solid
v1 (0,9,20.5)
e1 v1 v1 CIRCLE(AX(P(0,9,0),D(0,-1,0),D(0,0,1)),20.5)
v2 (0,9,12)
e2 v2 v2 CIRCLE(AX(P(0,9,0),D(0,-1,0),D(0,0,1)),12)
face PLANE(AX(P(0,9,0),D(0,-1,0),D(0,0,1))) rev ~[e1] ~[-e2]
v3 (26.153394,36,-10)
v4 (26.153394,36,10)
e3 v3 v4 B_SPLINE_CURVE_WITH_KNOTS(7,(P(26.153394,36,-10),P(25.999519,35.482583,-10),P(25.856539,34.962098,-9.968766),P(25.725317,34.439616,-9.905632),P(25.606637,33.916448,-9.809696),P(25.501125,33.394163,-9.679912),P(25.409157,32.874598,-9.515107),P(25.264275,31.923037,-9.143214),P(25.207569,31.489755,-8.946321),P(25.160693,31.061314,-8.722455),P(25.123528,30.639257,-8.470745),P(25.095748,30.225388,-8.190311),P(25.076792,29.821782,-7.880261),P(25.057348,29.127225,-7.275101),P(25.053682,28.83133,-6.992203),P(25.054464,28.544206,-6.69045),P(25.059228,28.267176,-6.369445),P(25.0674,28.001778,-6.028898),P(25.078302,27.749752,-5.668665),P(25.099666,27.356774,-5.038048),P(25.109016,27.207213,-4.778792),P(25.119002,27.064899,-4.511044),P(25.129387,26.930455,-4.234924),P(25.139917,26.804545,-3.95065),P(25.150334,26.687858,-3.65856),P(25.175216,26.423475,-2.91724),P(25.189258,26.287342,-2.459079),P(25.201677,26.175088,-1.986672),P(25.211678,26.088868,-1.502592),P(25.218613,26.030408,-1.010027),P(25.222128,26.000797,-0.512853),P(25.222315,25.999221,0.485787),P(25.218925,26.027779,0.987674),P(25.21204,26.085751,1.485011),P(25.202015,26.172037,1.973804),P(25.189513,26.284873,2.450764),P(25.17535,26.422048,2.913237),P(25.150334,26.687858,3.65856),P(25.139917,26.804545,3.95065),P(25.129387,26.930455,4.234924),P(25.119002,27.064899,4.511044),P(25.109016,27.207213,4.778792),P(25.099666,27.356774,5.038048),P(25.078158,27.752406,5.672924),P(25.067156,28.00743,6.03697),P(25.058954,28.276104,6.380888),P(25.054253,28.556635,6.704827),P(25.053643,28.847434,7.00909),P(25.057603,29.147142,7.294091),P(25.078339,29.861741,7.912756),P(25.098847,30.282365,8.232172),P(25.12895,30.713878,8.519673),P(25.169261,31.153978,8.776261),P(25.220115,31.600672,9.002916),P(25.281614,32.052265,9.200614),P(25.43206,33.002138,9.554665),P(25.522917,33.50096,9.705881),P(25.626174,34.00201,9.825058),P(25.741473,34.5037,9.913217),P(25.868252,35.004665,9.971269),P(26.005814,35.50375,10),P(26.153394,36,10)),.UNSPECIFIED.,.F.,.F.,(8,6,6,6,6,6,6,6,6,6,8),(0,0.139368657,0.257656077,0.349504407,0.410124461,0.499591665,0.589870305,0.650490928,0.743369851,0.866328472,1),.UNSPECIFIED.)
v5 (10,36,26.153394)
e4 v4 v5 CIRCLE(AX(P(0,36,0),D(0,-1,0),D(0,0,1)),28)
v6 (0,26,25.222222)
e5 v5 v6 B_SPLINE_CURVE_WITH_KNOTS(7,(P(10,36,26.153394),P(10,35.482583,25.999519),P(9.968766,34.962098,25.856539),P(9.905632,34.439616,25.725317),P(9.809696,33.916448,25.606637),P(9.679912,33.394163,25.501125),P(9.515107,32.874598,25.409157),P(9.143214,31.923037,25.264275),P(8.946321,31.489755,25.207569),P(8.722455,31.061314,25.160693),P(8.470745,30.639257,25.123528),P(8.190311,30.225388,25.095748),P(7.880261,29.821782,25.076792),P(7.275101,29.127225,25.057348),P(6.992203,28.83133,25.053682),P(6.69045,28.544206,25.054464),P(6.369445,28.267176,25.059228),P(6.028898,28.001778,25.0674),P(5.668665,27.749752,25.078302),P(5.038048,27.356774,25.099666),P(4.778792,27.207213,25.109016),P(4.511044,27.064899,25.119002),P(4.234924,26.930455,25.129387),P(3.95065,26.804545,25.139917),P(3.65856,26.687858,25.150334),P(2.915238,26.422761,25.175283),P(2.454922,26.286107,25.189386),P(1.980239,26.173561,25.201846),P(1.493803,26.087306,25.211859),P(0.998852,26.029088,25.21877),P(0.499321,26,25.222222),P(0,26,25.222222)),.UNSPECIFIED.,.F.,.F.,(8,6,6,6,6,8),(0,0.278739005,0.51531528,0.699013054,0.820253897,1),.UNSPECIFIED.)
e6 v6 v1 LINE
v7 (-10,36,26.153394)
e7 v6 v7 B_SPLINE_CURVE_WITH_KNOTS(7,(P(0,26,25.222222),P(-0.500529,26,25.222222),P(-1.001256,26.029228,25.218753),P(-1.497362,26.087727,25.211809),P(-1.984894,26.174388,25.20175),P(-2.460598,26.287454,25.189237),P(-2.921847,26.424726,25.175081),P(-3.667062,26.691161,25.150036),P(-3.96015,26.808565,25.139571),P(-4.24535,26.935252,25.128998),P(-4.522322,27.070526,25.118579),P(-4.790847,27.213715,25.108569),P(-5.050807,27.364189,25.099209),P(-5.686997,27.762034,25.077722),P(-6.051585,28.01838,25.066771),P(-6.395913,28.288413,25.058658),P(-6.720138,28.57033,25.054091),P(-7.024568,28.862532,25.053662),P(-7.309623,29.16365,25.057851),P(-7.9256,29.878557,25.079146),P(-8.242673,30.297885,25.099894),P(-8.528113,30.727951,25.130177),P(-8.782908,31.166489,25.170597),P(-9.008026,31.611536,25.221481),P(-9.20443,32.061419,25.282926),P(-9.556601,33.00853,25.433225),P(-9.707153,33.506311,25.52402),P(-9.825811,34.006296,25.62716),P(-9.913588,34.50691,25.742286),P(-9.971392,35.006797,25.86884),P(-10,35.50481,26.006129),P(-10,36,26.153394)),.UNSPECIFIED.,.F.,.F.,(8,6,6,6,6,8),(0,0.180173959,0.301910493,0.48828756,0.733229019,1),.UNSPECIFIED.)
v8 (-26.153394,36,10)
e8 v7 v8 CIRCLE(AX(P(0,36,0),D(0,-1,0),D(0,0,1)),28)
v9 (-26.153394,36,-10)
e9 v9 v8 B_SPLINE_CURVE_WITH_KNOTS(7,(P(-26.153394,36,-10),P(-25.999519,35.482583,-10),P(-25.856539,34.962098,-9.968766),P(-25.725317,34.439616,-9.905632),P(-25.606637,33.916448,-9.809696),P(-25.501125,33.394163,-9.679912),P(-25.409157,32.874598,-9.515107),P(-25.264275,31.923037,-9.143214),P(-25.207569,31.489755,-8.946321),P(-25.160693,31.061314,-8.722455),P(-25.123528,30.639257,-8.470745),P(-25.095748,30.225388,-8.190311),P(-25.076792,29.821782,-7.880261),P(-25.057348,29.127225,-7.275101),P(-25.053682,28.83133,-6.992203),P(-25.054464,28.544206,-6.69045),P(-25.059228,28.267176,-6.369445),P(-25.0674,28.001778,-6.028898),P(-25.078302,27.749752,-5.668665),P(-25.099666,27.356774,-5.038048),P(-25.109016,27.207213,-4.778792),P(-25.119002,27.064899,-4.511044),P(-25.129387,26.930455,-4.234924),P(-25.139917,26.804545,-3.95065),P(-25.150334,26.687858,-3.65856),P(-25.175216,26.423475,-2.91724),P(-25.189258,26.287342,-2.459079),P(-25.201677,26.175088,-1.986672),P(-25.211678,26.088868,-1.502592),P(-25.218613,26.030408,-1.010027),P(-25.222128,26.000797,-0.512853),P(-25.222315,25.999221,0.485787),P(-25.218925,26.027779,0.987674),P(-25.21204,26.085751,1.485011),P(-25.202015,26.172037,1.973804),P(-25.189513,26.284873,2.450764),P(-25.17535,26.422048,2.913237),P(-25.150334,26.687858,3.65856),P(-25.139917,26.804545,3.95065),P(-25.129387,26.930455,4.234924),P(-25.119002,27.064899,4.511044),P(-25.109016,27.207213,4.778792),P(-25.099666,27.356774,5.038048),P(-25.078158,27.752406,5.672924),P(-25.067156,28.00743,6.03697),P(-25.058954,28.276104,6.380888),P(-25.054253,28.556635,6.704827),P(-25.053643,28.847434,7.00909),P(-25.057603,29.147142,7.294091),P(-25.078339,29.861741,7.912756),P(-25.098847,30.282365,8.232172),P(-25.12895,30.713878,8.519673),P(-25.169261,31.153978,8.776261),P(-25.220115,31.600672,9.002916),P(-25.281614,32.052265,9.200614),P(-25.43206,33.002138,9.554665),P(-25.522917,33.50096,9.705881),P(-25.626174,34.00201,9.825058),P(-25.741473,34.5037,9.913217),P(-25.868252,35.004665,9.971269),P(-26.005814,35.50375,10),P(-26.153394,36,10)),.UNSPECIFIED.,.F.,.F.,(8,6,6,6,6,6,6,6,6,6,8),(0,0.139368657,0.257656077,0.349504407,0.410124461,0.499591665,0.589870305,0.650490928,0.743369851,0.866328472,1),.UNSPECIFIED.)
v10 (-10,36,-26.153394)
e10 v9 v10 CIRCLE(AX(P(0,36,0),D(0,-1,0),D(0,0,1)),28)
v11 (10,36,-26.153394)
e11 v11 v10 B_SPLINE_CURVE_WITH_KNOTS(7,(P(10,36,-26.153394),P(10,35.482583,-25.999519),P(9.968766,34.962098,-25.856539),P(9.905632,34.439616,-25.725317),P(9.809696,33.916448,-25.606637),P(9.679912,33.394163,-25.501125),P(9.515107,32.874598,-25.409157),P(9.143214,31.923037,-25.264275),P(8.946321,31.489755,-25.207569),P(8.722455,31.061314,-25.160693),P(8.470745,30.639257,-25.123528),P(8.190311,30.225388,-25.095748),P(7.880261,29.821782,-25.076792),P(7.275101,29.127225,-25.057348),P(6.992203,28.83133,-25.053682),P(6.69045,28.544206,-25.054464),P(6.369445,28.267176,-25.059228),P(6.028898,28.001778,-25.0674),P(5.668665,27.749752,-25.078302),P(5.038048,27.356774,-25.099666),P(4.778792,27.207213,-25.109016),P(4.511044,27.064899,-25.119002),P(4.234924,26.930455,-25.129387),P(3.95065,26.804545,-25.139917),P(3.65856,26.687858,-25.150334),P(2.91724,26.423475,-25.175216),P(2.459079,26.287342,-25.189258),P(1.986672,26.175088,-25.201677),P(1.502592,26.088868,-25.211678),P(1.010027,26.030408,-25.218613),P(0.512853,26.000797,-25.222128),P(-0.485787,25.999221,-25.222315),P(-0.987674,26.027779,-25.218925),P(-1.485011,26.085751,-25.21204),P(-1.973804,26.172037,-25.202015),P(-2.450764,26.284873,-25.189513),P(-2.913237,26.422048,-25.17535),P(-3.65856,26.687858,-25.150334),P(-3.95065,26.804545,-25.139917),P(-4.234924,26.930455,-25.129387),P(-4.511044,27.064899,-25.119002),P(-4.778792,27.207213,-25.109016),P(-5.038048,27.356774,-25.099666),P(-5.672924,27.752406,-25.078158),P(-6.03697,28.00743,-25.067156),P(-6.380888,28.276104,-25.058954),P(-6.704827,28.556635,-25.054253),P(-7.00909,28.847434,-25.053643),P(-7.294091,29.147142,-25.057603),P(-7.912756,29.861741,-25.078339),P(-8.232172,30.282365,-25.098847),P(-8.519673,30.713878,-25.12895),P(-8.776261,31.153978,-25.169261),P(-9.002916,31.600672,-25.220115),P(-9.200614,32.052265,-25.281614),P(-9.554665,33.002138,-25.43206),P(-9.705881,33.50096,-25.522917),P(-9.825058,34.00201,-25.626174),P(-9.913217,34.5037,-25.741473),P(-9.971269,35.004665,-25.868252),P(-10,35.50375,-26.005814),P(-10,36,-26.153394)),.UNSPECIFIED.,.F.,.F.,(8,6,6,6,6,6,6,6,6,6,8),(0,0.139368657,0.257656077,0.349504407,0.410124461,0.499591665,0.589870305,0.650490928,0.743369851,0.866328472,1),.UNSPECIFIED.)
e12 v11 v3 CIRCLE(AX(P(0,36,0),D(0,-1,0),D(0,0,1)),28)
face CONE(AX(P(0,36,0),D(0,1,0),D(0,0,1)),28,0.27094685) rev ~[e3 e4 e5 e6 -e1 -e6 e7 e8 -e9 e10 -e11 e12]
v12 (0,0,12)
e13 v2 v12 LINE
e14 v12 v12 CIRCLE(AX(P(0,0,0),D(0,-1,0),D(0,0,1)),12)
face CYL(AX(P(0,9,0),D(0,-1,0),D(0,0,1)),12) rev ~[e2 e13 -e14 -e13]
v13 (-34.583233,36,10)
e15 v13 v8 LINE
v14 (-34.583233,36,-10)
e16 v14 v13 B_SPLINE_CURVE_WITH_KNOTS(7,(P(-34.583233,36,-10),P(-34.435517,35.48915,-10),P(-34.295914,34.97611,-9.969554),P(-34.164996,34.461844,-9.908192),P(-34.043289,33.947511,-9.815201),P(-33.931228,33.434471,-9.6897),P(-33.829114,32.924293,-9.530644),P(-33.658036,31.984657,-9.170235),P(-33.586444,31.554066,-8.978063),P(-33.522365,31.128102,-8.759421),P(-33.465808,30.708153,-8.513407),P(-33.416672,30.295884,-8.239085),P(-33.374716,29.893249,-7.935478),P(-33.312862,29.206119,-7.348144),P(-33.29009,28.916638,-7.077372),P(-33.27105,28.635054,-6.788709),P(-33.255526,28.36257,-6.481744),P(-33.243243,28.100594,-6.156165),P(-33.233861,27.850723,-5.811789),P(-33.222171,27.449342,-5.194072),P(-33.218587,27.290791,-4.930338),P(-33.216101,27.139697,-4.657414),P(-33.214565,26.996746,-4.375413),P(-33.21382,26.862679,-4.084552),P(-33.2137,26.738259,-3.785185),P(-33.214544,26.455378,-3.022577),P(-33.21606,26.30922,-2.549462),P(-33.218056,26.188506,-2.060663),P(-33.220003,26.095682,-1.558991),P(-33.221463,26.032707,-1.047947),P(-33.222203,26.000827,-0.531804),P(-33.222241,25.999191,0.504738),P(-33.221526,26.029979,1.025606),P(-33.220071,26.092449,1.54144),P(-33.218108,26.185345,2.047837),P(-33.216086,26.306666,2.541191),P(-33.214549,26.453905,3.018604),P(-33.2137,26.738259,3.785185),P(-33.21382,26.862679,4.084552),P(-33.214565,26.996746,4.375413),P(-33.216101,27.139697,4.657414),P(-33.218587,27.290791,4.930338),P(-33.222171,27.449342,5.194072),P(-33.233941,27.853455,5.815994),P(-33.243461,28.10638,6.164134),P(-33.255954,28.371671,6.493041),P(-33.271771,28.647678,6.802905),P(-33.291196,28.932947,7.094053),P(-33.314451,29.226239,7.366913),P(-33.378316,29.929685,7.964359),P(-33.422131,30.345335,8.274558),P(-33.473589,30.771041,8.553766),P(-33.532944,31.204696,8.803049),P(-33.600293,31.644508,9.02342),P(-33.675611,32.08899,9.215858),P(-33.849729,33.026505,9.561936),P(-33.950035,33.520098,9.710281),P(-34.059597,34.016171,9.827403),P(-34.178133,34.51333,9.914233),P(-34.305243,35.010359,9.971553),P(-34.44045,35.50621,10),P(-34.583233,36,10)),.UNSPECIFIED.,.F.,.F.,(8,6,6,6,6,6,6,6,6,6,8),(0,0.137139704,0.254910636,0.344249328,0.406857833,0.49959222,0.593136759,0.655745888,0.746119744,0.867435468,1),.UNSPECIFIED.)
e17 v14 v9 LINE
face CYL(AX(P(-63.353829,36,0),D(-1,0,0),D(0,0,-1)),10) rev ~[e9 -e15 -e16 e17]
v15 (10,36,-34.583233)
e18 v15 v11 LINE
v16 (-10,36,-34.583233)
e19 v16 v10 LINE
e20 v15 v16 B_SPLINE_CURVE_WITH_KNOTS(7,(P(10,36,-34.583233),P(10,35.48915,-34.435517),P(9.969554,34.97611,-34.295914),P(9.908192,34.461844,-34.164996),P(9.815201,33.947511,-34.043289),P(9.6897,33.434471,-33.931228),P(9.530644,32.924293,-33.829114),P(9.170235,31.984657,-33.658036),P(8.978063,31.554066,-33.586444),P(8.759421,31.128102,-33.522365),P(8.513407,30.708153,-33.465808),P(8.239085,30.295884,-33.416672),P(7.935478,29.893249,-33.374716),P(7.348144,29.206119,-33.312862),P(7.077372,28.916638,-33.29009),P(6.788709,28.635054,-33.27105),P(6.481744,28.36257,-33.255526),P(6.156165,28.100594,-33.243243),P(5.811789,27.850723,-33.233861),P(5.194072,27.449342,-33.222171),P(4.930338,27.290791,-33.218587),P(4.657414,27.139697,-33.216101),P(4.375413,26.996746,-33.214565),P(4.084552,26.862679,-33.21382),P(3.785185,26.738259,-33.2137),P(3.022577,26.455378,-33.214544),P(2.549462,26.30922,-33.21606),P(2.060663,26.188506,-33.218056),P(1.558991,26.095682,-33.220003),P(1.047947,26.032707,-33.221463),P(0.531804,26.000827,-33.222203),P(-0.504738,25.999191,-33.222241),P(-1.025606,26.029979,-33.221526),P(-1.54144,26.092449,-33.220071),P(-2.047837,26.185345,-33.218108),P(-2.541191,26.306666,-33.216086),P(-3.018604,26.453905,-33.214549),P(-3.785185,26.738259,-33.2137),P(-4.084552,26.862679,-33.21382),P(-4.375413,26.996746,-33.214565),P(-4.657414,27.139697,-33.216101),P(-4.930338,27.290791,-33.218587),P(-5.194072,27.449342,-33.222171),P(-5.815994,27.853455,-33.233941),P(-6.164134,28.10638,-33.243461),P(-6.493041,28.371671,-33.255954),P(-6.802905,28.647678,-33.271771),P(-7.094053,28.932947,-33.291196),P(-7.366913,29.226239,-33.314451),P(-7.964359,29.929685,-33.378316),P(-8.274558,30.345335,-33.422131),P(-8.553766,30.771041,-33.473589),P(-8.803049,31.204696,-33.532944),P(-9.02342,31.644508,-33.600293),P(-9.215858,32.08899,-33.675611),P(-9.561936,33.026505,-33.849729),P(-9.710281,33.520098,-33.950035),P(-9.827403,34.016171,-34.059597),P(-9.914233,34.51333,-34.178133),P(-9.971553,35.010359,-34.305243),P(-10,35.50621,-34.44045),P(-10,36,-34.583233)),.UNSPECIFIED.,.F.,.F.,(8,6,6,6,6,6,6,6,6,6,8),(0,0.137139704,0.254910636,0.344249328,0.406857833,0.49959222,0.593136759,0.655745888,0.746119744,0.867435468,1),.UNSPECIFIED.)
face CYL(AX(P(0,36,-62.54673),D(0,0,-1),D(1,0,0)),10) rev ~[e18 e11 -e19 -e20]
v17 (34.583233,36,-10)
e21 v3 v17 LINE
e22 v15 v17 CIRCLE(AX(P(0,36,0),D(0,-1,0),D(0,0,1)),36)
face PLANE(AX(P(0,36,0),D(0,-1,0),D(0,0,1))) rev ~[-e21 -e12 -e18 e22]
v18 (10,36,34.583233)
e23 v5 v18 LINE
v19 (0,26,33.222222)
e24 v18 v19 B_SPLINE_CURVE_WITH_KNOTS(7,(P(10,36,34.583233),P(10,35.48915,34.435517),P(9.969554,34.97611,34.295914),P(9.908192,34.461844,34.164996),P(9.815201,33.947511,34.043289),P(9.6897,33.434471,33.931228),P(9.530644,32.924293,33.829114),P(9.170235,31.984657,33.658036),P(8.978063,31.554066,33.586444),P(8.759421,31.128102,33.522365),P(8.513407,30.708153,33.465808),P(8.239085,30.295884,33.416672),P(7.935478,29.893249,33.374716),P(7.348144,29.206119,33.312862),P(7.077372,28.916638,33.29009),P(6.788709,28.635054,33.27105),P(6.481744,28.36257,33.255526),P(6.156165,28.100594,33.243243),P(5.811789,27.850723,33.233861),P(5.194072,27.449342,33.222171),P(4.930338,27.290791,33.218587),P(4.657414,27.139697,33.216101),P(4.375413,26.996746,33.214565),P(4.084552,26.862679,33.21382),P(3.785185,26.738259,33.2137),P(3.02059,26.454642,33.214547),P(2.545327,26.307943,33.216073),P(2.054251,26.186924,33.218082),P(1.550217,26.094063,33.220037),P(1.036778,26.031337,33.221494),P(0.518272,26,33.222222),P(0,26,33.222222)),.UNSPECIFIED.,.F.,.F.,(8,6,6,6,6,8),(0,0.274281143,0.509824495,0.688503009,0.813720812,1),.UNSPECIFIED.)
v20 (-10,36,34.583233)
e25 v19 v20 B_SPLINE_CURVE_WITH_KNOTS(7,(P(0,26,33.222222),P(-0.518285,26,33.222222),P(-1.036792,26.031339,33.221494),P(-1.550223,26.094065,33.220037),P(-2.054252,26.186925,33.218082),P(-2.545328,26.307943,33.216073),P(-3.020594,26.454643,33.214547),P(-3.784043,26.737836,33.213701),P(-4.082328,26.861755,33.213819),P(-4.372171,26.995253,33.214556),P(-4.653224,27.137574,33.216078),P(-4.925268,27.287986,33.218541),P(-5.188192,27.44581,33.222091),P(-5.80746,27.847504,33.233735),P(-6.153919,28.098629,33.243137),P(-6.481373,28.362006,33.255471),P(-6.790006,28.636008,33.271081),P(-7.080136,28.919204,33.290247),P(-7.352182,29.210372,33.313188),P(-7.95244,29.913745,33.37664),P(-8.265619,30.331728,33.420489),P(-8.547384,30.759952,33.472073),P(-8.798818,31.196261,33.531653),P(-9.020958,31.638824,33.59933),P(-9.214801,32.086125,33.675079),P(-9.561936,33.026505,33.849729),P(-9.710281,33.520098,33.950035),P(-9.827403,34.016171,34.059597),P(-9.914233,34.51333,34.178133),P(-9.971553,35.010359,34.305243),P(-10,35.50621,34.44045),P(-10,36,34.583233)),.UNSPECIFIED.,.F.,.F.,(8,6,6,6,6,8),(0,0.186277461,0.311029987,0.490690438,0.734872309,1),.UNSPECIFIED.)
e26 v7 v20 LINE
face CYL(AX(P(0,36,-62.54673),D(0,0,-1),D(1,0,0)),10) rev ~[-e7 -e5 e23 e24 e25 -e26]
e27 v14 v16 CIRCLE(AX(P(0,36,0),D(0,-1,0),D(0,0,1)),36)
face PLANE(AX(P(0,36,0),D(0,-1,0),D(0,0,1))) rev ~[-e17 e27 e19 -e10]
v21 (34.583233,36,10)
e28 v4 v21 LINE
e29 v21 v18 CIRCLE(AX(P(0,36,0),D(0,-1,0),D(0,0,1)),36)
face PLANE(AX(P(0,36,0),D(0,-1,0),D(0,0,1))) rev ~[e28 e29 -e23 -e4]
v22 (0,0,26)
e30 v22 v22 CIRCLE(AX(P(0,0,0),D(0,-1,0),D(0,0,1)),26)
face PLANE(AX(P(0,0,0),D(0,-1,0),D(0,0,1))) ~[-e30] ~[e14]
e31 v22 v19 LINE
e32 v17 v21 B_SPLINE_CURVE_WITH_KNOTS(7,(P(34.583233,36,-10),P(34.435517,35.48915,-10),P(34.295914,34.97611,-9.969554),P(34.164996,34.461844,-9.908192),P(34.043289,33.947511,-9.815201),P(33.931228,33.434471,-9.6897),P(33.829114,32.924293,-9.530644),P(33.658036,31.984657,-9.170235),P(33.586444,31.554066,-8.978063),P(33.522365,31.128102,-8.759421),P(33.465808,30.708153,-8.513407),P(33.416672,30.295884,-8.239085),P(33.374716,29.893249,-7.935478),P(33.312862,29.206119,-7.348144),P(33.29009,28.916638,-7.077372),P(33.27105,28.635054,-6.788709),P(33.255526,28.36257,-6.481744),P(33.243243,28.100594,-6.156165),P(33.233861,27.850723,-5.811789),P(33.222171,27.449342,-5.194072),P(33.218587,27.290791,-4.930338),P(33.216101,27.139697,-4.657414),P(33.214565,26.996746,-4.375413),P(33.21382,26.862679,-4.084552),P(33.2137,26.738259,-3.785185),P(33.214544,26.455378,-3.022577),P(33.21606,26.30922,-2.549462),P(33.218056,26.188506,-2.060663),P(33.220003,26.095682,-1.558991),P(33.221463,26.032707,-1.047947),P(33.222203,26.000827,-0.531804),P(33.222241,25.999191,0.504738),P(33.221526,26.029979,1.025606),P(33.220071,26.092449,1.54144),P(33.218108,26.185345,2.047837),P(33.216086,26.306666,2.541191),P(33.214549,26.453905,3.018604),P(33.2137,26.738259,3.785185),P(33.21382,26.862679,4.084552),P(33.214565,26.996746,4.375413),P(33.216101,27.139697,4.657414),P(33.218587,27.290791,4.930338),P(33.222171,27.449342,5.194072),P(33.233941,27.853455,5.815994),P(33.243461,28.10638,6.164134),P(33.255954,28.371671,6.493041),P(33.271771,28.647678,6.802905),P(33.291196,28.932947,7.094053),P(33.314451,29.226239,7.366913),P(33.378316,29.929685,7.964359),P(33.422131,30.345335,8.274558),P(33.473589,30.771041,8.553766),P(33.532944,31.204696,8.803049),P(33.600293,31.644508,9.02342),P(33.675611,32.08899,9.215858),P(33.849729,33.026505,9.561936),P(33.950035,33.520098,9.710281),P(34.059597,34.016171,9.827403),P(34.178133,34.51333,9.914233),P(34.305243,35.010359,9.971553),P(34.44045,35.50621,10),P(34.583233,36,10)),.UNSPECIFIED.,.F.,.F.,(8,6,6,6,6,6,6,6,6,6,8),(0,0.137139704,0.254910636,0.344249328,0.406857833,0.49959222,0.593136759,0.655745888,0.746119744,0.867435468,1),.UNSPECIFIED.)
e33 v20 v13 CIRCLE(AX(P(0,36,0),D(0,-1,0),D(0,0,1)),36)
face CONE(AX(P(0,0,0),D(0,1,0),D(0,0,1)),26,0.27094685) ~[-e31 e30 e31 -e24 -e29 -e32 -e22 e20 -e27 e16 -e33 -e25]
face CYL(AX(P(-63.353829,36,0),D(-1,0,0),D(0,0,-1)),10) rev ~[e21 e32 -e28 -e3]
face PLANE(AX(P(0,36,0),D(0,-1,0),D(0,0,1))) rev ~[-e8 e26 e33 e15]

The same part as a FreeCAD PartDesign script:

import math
import FreeCAD as App
import Part
import Sketcher
Q = App.Units.Quantity


def add_polygon(sketch, points):
    """Adds a closed chain of lines whose ends are joined by coincident constraints."""
    first, n = sketch.GeometryCount, len(points)
    for a, b in zip(points, points[1:] + points[:1]):
        sketch.addGeometry(Part.LineSegment(App.Vector(*a, 0), App.Vector(*b, 0)), False)
    for i in range(n):
        sketch.addConstraint(Sketcher.Constraint("Coincident", first + i, 2, first + (i + 1) % n, 1))

doc = App.newDocument("Part")
body = doc.addObject("PartDesign::Body", "Body")

# Sketch on XY plane
sketch1 = doc.addObject("Sketcher::SketchObject", "Sketch")
body.addObject(sketch1)
sketch1.AttachmentSupport = (doc.XY_Plane, [""])
sketch1.MapMode = "FlatFace"
add_polygon(sketch1, [(12, 0), (26, 0), (36, 36), (28, 36), (20, 9), (12, 9)])  # lines 0-5
sketch1.addConstraint([
    Sketcher.Constraint("Horizontal", 0),
    Sketcher.Constraint("Horizontal", 2),
    Sketcher.Constraint("Horizontal", 4),
    Sketcher.Constraint("Vertical", 5),
    Sketcher.Constraint("PointOnObject", 0, 2, -1),
    Sketcher.Constraint("Parallel", 1, 3),
    Sketcher.Constraint("DistanceX", 0, 1, 0, 2, Q("14 mm")),
    Sketcher.Constraint("DistanceX", 2, 2, 2, 1, Q("8 mm")),
    Sketcher.Constraint("DistanceY", 5, 2, 5, 1, Q("9 mm")),
    Sketcher.Constraint("DistanceX", 4, 2, 4, 1, Q("8.5 mm")),
    Sketcher.Constraint("DistanceX", -1, 1, 0, 2, Q("26 mm")),
    Sketcher.Constraint("DistanceX", -1, 1, 1, 2, Q("36 mm")),
])
revolution = doc.addObject("PartDesign::Revolution", "Revolution")
body.addObject(revolution)
revolution.Profile = sketch1
revolution.ReferenceAxis = (sketch1, ["V_Axis"])
revolution.Angle = 360

# Sketch on YZ plane
sketch2 = doc.addObject("Sketcher::SketchObject", "Sketch001")
body.addObject(sketch2)
sketch2.AttachmentSupport = (doc.YZ_Plane, [""])
sketch2.MapMode = "FlatFace"
sketch2.addGeometry([
    Part.LineSegment(App.Vector(36, -10, 0), App.Vector(36, 10, 0)),
    Part.ArcOfCircle(Part.Circle(App.Vector(36, 0, 0), App.Vector(0, 0, 1), 10), math.radians(90), math.radians(270)),
], False)
sketch2.addConstraint([
    Sketcher.Constraint("Coincident", 0, 1, 1, 2),
    Sketcher.Constraint("Coincident", 1, 1, 0, 2),
    Sketcher.Constraint("Vertical", 0),
    Sketcher.Constraint("PointOnObject", 1, 3, -1),
    Sketcher.Constraint("Vertical", 1, 3, 0, 1),
    Sketcher.Constraint("Radius", 1, Q("10 mm")),
    Sketcher.Constraint("DistanceX", -1, 1, 1, 3, Q("36 mm")),
])
pocket1 = doc.addObject("PartDesign::Pocket", "Pocket")
body.addObject(pocket1)
pocket1.Profile = sketch2
pocket1.Type = "ThroughAll"
pocket1.Midplane = True

# Sketch on XY plane
sketch3 = doc.addObject("Sketcher::SketchObject", "Sketch002")
body.addObject(sketch3)
sketch3.AttachmentSupport = (doc.XY_Plane, [""])
sketch3.MapMode = "FlatFace"
sketch3.addGeometry([
    Part.LineSegment(App.Vector(10, 36, 0), App.Vector(-10, 36, 0)),
    Part.ArcOfCircle(Part.Circle(App.Vector(0, 36, 0), App.Vector(0, 0, 1), 10), math.radians(180), math.radians(360)),
], False)
sketch3.addConstraint([
    Sketcher.Constraint("Coincident", 0, 1, 1, 2),
    Sketcher.Constraint("Coincident", 1, 1, 0, 2),
    Sketcher.Constraint("Horizontal", 0),
    Sketcher.Constraint("PointOnObject", 1, 3, -2),
    Sketcher.Constraint("Horizontal", 1, 3, 0, 1),
    Sketcher.Constraint("Radius", 1, Q("10 mm")),
    Sketcher.Constraint("DistanceY", -1, 1, 1, 3, Q("36 mm")),
])
pocket2 = doc.addObject("PartDesign::Pocket", "Pocket001")
body.addObject(pocket2)
pocket2.Profile = sketch3
pocket2.Type = "ThroughAll"
pocket2.Midplane = True

doc.recompute()
